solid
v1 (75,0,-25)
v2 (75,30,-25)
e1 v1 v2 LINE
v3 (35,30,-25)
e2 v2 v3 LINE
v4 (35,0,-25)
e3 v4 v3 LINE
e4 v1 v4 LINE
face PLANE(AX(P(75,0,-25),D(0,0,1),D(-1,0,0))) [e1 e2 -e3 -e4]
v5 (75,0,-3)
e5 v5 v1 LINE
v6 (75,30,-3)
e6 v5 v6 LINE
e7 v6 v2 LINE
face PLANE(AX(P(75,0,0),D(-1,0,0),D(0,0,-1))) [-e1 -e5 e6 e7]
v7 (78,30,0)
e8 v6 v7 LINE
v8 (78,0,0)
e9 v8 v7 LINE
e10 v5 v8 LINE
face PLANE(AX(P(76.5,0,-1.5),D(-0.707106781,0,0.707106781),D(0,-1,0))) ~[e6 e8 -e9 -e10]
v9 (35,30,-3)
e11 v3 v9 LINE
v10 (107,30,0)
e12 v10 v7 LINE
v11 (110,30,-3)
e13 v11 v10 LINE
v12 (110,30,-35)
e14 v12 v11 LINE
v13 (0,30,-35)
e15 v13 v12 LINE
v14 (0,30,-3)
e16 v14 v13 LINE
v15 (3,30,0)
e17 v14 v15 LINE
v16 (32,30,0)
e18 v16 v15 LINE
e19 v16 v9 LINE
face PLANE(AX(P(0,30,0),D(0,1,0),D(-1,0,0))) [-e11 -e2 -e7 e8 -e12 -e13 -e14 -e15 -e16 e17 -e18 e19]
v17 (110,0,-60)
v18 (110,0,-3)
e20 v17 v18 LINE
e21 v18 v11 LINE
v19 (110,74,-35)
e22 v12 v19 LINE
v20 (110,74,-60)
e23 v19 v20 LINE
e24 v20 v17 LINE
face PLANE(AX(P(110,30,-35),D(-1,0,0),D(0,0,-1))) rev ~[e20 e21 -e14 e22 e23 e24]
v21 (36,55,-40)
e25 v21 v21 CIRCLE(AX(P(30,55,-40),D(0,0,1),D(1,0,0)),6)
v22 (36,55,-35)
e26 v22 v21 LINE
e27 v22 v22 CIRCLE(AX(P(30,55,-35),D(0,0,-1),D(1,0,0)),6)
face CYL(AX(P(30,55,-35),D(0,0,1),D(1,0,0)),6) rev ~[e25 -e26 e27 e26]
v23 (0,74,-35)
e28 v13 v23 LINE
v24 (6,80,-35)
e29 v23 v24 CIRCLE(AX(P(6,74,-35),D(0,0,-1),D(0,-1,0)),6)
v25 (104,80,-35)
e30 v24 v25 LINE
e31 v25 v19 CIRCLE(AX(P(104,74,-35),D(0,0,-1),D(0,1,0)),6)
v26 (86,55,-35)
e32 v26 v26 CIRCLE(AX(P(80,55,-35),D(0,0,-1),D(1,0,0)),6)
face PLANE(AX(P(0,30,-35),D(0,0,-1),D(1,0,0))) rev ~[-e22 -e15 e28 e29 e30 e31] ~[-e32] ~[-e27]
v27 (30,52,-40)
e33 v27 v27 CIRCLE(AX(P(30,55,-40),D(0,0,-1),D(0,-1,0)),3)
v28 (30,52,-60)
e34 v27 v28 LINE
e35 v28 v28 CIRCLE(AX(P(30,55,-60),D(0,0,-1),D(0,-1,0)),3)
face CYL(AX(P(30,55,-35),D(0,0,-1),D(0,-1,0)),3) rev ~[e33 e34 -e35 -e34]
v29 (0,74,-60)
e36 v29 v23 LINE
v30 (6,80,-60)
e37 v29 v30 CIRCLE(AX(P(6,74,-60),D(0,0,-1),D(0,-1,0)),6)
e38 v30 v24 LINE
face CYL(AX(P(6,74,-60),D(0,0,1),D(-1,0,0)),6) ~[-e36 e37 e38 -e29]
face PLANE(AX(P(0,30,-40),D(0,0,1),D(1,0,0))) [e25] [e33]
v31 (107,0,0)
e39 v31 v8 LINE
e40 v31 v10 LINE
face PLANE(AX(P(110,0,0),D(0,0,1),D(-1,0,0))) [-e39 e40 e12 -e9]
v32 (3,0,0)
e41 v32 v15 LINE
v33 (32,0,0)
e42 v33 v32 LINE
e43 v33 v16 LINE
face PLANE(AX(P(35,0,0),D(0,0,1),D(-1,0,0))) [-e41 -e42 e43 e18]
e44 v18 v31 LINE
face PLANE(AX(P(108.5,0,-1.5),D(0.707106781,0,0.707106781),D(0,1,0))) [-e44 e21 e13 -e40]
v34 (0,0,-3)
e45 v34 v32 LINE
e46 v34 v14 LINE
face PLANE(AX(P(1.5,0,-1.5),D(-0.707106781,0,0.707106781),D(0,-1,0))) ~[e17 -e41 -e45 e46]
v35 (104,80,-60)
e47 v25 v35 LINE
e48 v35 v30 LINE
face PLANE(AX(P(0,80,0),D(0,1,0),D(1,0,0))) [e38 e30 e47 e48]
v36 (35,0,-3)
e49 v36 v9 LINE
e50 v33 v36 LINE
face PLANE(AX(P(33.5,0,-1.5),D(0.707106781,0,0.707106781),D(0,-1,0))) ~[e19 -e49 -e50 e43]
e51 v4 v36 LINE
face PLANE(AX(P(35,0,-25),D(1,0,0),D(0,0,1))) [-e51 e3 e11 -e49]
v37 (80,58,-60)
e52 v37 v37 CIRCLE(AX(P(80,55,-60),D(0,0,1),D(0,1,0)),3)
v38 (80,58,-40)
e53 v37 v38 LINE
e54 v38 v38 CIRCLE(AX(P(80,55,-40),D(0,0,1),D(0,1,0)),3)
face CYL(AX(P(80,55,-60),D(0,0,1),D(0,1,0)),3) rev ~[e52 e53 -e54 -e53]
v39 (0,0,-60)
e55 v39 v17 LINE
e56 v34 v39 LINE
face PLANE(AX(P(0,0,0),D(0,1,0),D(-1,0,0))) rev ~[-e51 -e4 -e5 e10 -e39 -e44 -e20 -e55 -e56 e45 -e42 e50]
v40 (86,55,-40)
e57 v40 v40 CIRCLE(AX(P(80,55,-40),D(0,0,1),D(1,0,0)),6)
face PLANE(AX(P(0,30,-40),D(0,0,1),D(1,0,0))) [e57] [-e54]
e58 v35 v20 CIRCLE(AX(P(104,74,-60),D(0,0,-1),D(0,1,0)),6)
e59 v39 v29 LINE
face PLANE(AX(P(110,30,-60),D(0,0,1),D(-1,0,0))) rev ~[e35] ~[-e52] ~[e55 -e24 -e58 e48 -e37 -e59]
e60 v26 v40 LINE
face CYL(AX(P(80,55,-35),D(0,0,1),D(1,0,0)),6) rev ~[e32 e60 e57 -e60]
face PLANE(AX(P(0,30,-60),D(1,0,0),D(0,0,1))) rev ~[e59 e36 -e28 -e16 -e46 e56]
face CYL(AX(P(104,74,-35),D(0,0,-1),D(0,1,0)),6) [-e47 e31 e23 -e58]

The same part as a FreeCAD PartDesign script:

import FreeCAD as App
import Part
import Sketcher
from FreeCAD import Vector
Q = App.Units.Quantity


def edges_at(feature, points):
    """Names of the edges that pass closest to the given points."""
    edges = feature.Shape.Edges
    near = lambda p: min(range(len(edges)), key=lambda i: edges[i].distToShape(Part.Vertex(*p))[0])
    return sorted({f"Edge{near(p) + 1}" for p in points})

doc = App.newDocument("Part")
body = doc.addObject("PartDesign::Body", "Body")

# Sketch on XZ plane
sketch1 = doc.addObject("Sketcher::SketchObject", "Sketch")
body.addObject(sketch1)
sketch1.AttachmentSupport = (doc.XZ_Plane, [""])
sketch1.MapMode = "FlatFace"
sketch1.addGeometry(Part.LineSegment(Vector(0, -60, 0), Vector(0, 0, 0)), False)
sketch1.addGeometry(Part.LineSegment(Vector(0, 0, 0), Vector(35, 0, 0)), False)
sketch1.addGeometry(Part.LineSegment(Vector(35, 0, 0), Vector(35, -25, 0)), False)
sketch1.addGeometry(Part.LineSegment(Vector(35, -25, 0), Vector(75, -25, 0)), False)
sketch1.addGeometry(Part.LineSegment(Vector(75, -25, 0), Vector(75, 0, 0)), False)
sketch1.addGeometry(Part.LineSegment(Vector(75, 0, 0), Vector(110, 0, 0)), False)
sketch1.addGeometry(Part.LineSegment(Vector(110, 0, 0), Vector(110, -60, 0)), False)
sketch1.addGeometry(Part.LineSegment(Vector(110, -60, 0), Vector(0, -60, 0)), False)
sketch1.addConstraint(Sketcher.Constraint("Coincident", 0, 2, 1, 1))
sketch1.addConstraint(Sketcher.Constraint("Coincident", 1, 2, 2, 1))
sketch1.addConstraint(Sketcher.Constraint("Coincident", 2, 2, 3, 1))
sketch1.addConstraint(Sketcher.Constraint("Coincident", 3, 2, 4, 1))
sketch1.addConstraint(Sketcher.Constraint("Coincident", 4, 2, 5, 1))
sketch1.addConstraint(Sketcher.Constraint("Coincident", 5, 2, 6, 1))
sketch1.addConstraint(Sketcher.Constraint("Coincident", 6, 2, 7, 1))
sketch1.addConstraint(Sketcher.Constraint("Coincident", 7, 2, 0, 1))
sketch1.addConstraint(Sketcher.Constraint("Vertical", 0))
sketch1.addConstraint(Sketcher.Constraint("Horizontal", 1))
sketch1.addConstraint(Sketcher.Constraint("Vertical", 2))
sketch1.addConstraint(Sketcher.Constraint("Horizontal", 3))
sketch1.addConstraint(Sketcher.Constraint("Vertical", 4))
sketch1.addConstraint(Sketcher.Constraint("Horizontal", 5))
sketch1.addConstraint(Sketcher.Constraint("Vertical", 6))
sketch1.addConstraint(Sketcher.Constraint("Horizontal", 7))
sketch1.addConstraint(Sketcher.Constraint("Coincident", 0, 2, -1, 1))
sketch1.addConstraint(Sketcher.Constraint("PointOnObject", 4, 2, -1))
sketch1.addConstraint(Sketcher.Constraint("Equal", 1, 5))
sketch1.addConstraint(Sketcher.Constraint("DistanceX", 1, 1, 1, 2, Q("35 mm")))
sketch1.addConstraint(Sketcher.Constraint("DistanceX", 3, 1, 3, 2, Q("40 mm")))
sketch1.addConstraint(Sketcher.Constraint("DistanceY", 0, 1, 0, 2, Q("60 mm")))
sketch1.addConstraint(Sketcher.Constraint("DistanceY", 2, 2, 2, 1, Q("25 mm")))
pad1 = doc.addObject("PartDesign::Pad", "Pad")
body.addObject(pad1)
pad1.Profile = sketch1
pad1.Length = 30
pad1.Reversed = True
doc.recompute()

chamfer = doc.addObject("PartDesign::Chamfer", "Chamfer")
body.addObject(chamfer)
chamfer.Base = (pad1, edges_at(pad1, [(0, 15, 0)]))
chamfer.Size = 3
doc.recompute()

chamfer2 = doc.addObject("PartDesign::Chamfer", "Chamfer001")
body.addObject(chamfer2)
chamfer2.Base = (chamfer, edges_at(chamfer, [(110, 15, 0)]))
chamfer2.Size = 3
doc.recompute()

chamfer3 = doc.addObject("PartDesign::Chamfer", "Chamfer002")
body.addObject(chamfer3)
chamfer3.Base = (chamfer2, edges_at(chamfer2, [(35, 15, 0)]))
chamfer3.Size = 3
doc.recompute()

chamfer4 = doc.addObject("PartDesign::Chamfer", "Chamfer003")
body.addObject(chamfer4)
chamfer4.Base = (chamfer3, edges_at(chamfer3, [(75, 15, 0)]))
chamfer4.Size = 3

# Sketch on XZ plane
sketch2 = doc.addObject("Sketcher::SketchObject", "Sketch001")
body.addObject(sketch2)
sketch2.AttachmentSupport = (doc.XZ_Plane, [""])
sketch2.MapMode = "FlatFace"
sketch2.AttachmentOffset = App.Placement(Vector(0, 0, -30), App.Rotation())
sketch2.addGeometry(Part.LineSegment(Vector(110, -60, 0), Vector(0, -60, 0)), False)
sketch2.addGeometry(Part.LineSegment(Vector(0, -60, 0), Vector(0, -35, 0)), False)
sketch2.addGeometry(Part.LineSegment(Vector(0, -35, 0), Vector(110, -35, 0)), False)
sketch2.addGeometry(Part.LineSegment(Vector(110, -35, 0), Vector(110, -60, 0)), False)
sketch2.addConstraint(Sketcher.Constraint("Coincident", 0, 2, 1, 1))
sketch2.addConstraint(Sketcher.Constraint("Coincident", 1, 2, 2, 1))
sketch2.addConstraint(Sketcher.Constraint("Coincident", 2, 2, 3, 1))
sketch2.addConstraint(Sketcher.Constraint("Coincident", 3, 2, 0, 1))
sketch2.addConstraint(Sketcher.Constraint("Horizontal", 0))
sketch2.addConstraint(Sketcher.Constraint("Vertical", 1))
sketch2.addConstraint(Sketcher.Constraint("Horizontal", 2))
sketch2.addConstraint(Sketcher.Constraint("Vertical", 3))
sketch2.addConstraint(Sketcher.Constraint("PointOnObject", 0, 2, -2))
sketch2.addConstraint(Sketcher.Constraint("DistanceY", 1, 1, 1, 2, Q("25 mm")))
sketch2.addConstraint(Sketcher.Constraint("DistanceX", 0, 2, 0, 1, Q("110 mm")))
sketch2.addConstraint(Sketcher.Constraint("DistanceY", 0, 2, -1, 1, Q("60 mm")))
pad2 = doc.addObject("PartDesign::Pad", "Pad001")
body.addObject(pad2)
pad2.Profile = sketch2
pad2.Length = 50
pad2.Reversed = True
doc.recompute()

fillet = doc.addObject("PartDesign::Fillet", "Fillet")
body.addObject(fillet)
fillet.Base = (pad2, edges_at(pad2, [(0, 80, -47.5)]))
fillet.Radius = 6
doc.recompute()

fillet2 = doc.addObject("PartDesign::Fillet", "Fillet001")
body.addObject(fillet2)
fillet2.Base = (fillet, edges_at(fillet, [(110, 80, -47.5)]))
fillet2.Radius = 6

# Sketch on XY plane
sketch3 = doc.addObject("Sketcher::SketchObject", "Sketch002")
body.addObject(sketch3)
sketch3.AttachmentSupport = (doc.XY_Plane, [""])
sketch3.MapMode = "FlatFace"
sketch3.AttachmentOffset = App.Placement(Vector(0, 0, -35), App.Rotation())
sketch3.addGeometry(Part.Circle(Vector(30, 55, 0), Vector(0, 0, 1), 6), False)
sketch3.addConstraint(Sketcher.Constraint("Diameter", 0, Q("12 mm")))
sketch3.addConstraint(Sketcher.Constraint("DistanceX", -1, 1, 0, 3, Q("30 mm")))
sketch3.addConstraint(Sketcher.Constraint("DistanceY", -1, 1, 0, 3, Q("55 mm")))
pocket1 = doc.addObject("PartDesign::Pocket", "Pocket")
body.addObject(pocket1)
pocket1.Profile = sketch3
pocket1.Length = 5

# Sketch on XY plane
sketch4 = doc.addObject("Sketcher::SketchObject", "Sketch003")
body.addObject(sketch4)
sketch4.AttachmentSupport = (doc.XY_Plane, [""])
sketch4.MapMode = "FlatFace"
sketch4.AttachmentOffset = App.Placement(Vector(0, 0, -35), App.Rotation())
sketch4.addGeometry(Part.Circle(Vector(80, 55, 0), Vector(0, 0, 1), 6), False)
sketch4.addConstraint(Sketcher.Constraint("Diameter", 0, Q("12 mm")))
sketch4.addConstraint(Sketcher.Constraint("DistanceX", -1, 1, 0, 3, Q("80 mm")))
sketch4.addConstraint(Sketcher.Constraint("DistanceY", -1, 1, 0, 3, Q("55 mm")))
pocket2 = doc.addObject("PartDesign::Pocket", "Pocket001")
body.addObject(pocket2)
pocket2.Profile = sketch4
pocket2.Length = 5

# Sketch on XY plane
sketch5 = doc.addObject("Sketcher::SketchObject", "Sketch004")
body.addObject(sketch5)
sketch5.AttachmentSupport = (doc.XY_Plane, [""])
sketch5.MapMode = "FlatFace"
sketch5.AttachmentOffset = App.Placement(Vector(0, 0, -35), App.Rotation())
sketch5.addGeometry(Part.Circle(Vector(30, 55, 0), Vector(0, 0, 1), 3), False)
sketch5.addConstraint(Sketcher.Constraint("Diameter", 0, Q("6 mm")))
sketch5.addConstraint(Sketcher.Constraint("DistanceX", -1, 1, 0, 3, Q("30 mm")))
sketch5.addConstraint(Sketcher.Constraint("DistanceY", -1, 1, 0, 3, Q("55 mm")))
doc.recompute()
hole = doc.addObject("PartDesign::Hole", "Hole")
body.addObject(hole)
hole.Profile = sketch5
hole.ThreadType = "None"
hole.Diameter = 6
hole.DepthType = "Dimension"
hole.Depth = 28.228
hole.DrillPoint = "Angled"
hole.DrillPointAngle = 118

# Sketch on XY plane
sketch6 = doc.addObject("Sketcher::SketchObject", "Sketch005")
body.addObject(sketch6)
sketch6.AttachmentSupport = (doc.XY_Plane, [""])
sketch6.MapMode = "FlatFace"
sketch6.AttachmentOffset = App.Placement(Vector(0, 0, -60), App.Rotation())
sketch6.addGeometry(Part.Circle(Vector(80, 55, 0), Vector(0, 0, 1), 3), False)
sketch6.addConstraint(Sketcher.Constraint("Diameter", 0, Q("6 mm")))
sketch6.addConstraint(Sketcher.Constraint("DistanceX", -1, 1, 0, 3, Q("80 mm")))
sketch6.addConstraint(Sketcher.Constraint("DistanceY", -1, 1, 0, 3, Q("55 mm")))
doc.recompute()
hole2 = doc.addObject("PartDesign::Hole", "Hole001")
body.addObject(hole2)
hole2.Profile = sketch6
hole2.ThreadType = "None"
hole2.Diameter = 6
hole2.DepthType = "Dimension"
hole2.Depth = 28.228
hole2.DrillPoint = "Angled"
hole2.DrillPointAngle = 118
hole2.Reversed = True

doc.recompute()
